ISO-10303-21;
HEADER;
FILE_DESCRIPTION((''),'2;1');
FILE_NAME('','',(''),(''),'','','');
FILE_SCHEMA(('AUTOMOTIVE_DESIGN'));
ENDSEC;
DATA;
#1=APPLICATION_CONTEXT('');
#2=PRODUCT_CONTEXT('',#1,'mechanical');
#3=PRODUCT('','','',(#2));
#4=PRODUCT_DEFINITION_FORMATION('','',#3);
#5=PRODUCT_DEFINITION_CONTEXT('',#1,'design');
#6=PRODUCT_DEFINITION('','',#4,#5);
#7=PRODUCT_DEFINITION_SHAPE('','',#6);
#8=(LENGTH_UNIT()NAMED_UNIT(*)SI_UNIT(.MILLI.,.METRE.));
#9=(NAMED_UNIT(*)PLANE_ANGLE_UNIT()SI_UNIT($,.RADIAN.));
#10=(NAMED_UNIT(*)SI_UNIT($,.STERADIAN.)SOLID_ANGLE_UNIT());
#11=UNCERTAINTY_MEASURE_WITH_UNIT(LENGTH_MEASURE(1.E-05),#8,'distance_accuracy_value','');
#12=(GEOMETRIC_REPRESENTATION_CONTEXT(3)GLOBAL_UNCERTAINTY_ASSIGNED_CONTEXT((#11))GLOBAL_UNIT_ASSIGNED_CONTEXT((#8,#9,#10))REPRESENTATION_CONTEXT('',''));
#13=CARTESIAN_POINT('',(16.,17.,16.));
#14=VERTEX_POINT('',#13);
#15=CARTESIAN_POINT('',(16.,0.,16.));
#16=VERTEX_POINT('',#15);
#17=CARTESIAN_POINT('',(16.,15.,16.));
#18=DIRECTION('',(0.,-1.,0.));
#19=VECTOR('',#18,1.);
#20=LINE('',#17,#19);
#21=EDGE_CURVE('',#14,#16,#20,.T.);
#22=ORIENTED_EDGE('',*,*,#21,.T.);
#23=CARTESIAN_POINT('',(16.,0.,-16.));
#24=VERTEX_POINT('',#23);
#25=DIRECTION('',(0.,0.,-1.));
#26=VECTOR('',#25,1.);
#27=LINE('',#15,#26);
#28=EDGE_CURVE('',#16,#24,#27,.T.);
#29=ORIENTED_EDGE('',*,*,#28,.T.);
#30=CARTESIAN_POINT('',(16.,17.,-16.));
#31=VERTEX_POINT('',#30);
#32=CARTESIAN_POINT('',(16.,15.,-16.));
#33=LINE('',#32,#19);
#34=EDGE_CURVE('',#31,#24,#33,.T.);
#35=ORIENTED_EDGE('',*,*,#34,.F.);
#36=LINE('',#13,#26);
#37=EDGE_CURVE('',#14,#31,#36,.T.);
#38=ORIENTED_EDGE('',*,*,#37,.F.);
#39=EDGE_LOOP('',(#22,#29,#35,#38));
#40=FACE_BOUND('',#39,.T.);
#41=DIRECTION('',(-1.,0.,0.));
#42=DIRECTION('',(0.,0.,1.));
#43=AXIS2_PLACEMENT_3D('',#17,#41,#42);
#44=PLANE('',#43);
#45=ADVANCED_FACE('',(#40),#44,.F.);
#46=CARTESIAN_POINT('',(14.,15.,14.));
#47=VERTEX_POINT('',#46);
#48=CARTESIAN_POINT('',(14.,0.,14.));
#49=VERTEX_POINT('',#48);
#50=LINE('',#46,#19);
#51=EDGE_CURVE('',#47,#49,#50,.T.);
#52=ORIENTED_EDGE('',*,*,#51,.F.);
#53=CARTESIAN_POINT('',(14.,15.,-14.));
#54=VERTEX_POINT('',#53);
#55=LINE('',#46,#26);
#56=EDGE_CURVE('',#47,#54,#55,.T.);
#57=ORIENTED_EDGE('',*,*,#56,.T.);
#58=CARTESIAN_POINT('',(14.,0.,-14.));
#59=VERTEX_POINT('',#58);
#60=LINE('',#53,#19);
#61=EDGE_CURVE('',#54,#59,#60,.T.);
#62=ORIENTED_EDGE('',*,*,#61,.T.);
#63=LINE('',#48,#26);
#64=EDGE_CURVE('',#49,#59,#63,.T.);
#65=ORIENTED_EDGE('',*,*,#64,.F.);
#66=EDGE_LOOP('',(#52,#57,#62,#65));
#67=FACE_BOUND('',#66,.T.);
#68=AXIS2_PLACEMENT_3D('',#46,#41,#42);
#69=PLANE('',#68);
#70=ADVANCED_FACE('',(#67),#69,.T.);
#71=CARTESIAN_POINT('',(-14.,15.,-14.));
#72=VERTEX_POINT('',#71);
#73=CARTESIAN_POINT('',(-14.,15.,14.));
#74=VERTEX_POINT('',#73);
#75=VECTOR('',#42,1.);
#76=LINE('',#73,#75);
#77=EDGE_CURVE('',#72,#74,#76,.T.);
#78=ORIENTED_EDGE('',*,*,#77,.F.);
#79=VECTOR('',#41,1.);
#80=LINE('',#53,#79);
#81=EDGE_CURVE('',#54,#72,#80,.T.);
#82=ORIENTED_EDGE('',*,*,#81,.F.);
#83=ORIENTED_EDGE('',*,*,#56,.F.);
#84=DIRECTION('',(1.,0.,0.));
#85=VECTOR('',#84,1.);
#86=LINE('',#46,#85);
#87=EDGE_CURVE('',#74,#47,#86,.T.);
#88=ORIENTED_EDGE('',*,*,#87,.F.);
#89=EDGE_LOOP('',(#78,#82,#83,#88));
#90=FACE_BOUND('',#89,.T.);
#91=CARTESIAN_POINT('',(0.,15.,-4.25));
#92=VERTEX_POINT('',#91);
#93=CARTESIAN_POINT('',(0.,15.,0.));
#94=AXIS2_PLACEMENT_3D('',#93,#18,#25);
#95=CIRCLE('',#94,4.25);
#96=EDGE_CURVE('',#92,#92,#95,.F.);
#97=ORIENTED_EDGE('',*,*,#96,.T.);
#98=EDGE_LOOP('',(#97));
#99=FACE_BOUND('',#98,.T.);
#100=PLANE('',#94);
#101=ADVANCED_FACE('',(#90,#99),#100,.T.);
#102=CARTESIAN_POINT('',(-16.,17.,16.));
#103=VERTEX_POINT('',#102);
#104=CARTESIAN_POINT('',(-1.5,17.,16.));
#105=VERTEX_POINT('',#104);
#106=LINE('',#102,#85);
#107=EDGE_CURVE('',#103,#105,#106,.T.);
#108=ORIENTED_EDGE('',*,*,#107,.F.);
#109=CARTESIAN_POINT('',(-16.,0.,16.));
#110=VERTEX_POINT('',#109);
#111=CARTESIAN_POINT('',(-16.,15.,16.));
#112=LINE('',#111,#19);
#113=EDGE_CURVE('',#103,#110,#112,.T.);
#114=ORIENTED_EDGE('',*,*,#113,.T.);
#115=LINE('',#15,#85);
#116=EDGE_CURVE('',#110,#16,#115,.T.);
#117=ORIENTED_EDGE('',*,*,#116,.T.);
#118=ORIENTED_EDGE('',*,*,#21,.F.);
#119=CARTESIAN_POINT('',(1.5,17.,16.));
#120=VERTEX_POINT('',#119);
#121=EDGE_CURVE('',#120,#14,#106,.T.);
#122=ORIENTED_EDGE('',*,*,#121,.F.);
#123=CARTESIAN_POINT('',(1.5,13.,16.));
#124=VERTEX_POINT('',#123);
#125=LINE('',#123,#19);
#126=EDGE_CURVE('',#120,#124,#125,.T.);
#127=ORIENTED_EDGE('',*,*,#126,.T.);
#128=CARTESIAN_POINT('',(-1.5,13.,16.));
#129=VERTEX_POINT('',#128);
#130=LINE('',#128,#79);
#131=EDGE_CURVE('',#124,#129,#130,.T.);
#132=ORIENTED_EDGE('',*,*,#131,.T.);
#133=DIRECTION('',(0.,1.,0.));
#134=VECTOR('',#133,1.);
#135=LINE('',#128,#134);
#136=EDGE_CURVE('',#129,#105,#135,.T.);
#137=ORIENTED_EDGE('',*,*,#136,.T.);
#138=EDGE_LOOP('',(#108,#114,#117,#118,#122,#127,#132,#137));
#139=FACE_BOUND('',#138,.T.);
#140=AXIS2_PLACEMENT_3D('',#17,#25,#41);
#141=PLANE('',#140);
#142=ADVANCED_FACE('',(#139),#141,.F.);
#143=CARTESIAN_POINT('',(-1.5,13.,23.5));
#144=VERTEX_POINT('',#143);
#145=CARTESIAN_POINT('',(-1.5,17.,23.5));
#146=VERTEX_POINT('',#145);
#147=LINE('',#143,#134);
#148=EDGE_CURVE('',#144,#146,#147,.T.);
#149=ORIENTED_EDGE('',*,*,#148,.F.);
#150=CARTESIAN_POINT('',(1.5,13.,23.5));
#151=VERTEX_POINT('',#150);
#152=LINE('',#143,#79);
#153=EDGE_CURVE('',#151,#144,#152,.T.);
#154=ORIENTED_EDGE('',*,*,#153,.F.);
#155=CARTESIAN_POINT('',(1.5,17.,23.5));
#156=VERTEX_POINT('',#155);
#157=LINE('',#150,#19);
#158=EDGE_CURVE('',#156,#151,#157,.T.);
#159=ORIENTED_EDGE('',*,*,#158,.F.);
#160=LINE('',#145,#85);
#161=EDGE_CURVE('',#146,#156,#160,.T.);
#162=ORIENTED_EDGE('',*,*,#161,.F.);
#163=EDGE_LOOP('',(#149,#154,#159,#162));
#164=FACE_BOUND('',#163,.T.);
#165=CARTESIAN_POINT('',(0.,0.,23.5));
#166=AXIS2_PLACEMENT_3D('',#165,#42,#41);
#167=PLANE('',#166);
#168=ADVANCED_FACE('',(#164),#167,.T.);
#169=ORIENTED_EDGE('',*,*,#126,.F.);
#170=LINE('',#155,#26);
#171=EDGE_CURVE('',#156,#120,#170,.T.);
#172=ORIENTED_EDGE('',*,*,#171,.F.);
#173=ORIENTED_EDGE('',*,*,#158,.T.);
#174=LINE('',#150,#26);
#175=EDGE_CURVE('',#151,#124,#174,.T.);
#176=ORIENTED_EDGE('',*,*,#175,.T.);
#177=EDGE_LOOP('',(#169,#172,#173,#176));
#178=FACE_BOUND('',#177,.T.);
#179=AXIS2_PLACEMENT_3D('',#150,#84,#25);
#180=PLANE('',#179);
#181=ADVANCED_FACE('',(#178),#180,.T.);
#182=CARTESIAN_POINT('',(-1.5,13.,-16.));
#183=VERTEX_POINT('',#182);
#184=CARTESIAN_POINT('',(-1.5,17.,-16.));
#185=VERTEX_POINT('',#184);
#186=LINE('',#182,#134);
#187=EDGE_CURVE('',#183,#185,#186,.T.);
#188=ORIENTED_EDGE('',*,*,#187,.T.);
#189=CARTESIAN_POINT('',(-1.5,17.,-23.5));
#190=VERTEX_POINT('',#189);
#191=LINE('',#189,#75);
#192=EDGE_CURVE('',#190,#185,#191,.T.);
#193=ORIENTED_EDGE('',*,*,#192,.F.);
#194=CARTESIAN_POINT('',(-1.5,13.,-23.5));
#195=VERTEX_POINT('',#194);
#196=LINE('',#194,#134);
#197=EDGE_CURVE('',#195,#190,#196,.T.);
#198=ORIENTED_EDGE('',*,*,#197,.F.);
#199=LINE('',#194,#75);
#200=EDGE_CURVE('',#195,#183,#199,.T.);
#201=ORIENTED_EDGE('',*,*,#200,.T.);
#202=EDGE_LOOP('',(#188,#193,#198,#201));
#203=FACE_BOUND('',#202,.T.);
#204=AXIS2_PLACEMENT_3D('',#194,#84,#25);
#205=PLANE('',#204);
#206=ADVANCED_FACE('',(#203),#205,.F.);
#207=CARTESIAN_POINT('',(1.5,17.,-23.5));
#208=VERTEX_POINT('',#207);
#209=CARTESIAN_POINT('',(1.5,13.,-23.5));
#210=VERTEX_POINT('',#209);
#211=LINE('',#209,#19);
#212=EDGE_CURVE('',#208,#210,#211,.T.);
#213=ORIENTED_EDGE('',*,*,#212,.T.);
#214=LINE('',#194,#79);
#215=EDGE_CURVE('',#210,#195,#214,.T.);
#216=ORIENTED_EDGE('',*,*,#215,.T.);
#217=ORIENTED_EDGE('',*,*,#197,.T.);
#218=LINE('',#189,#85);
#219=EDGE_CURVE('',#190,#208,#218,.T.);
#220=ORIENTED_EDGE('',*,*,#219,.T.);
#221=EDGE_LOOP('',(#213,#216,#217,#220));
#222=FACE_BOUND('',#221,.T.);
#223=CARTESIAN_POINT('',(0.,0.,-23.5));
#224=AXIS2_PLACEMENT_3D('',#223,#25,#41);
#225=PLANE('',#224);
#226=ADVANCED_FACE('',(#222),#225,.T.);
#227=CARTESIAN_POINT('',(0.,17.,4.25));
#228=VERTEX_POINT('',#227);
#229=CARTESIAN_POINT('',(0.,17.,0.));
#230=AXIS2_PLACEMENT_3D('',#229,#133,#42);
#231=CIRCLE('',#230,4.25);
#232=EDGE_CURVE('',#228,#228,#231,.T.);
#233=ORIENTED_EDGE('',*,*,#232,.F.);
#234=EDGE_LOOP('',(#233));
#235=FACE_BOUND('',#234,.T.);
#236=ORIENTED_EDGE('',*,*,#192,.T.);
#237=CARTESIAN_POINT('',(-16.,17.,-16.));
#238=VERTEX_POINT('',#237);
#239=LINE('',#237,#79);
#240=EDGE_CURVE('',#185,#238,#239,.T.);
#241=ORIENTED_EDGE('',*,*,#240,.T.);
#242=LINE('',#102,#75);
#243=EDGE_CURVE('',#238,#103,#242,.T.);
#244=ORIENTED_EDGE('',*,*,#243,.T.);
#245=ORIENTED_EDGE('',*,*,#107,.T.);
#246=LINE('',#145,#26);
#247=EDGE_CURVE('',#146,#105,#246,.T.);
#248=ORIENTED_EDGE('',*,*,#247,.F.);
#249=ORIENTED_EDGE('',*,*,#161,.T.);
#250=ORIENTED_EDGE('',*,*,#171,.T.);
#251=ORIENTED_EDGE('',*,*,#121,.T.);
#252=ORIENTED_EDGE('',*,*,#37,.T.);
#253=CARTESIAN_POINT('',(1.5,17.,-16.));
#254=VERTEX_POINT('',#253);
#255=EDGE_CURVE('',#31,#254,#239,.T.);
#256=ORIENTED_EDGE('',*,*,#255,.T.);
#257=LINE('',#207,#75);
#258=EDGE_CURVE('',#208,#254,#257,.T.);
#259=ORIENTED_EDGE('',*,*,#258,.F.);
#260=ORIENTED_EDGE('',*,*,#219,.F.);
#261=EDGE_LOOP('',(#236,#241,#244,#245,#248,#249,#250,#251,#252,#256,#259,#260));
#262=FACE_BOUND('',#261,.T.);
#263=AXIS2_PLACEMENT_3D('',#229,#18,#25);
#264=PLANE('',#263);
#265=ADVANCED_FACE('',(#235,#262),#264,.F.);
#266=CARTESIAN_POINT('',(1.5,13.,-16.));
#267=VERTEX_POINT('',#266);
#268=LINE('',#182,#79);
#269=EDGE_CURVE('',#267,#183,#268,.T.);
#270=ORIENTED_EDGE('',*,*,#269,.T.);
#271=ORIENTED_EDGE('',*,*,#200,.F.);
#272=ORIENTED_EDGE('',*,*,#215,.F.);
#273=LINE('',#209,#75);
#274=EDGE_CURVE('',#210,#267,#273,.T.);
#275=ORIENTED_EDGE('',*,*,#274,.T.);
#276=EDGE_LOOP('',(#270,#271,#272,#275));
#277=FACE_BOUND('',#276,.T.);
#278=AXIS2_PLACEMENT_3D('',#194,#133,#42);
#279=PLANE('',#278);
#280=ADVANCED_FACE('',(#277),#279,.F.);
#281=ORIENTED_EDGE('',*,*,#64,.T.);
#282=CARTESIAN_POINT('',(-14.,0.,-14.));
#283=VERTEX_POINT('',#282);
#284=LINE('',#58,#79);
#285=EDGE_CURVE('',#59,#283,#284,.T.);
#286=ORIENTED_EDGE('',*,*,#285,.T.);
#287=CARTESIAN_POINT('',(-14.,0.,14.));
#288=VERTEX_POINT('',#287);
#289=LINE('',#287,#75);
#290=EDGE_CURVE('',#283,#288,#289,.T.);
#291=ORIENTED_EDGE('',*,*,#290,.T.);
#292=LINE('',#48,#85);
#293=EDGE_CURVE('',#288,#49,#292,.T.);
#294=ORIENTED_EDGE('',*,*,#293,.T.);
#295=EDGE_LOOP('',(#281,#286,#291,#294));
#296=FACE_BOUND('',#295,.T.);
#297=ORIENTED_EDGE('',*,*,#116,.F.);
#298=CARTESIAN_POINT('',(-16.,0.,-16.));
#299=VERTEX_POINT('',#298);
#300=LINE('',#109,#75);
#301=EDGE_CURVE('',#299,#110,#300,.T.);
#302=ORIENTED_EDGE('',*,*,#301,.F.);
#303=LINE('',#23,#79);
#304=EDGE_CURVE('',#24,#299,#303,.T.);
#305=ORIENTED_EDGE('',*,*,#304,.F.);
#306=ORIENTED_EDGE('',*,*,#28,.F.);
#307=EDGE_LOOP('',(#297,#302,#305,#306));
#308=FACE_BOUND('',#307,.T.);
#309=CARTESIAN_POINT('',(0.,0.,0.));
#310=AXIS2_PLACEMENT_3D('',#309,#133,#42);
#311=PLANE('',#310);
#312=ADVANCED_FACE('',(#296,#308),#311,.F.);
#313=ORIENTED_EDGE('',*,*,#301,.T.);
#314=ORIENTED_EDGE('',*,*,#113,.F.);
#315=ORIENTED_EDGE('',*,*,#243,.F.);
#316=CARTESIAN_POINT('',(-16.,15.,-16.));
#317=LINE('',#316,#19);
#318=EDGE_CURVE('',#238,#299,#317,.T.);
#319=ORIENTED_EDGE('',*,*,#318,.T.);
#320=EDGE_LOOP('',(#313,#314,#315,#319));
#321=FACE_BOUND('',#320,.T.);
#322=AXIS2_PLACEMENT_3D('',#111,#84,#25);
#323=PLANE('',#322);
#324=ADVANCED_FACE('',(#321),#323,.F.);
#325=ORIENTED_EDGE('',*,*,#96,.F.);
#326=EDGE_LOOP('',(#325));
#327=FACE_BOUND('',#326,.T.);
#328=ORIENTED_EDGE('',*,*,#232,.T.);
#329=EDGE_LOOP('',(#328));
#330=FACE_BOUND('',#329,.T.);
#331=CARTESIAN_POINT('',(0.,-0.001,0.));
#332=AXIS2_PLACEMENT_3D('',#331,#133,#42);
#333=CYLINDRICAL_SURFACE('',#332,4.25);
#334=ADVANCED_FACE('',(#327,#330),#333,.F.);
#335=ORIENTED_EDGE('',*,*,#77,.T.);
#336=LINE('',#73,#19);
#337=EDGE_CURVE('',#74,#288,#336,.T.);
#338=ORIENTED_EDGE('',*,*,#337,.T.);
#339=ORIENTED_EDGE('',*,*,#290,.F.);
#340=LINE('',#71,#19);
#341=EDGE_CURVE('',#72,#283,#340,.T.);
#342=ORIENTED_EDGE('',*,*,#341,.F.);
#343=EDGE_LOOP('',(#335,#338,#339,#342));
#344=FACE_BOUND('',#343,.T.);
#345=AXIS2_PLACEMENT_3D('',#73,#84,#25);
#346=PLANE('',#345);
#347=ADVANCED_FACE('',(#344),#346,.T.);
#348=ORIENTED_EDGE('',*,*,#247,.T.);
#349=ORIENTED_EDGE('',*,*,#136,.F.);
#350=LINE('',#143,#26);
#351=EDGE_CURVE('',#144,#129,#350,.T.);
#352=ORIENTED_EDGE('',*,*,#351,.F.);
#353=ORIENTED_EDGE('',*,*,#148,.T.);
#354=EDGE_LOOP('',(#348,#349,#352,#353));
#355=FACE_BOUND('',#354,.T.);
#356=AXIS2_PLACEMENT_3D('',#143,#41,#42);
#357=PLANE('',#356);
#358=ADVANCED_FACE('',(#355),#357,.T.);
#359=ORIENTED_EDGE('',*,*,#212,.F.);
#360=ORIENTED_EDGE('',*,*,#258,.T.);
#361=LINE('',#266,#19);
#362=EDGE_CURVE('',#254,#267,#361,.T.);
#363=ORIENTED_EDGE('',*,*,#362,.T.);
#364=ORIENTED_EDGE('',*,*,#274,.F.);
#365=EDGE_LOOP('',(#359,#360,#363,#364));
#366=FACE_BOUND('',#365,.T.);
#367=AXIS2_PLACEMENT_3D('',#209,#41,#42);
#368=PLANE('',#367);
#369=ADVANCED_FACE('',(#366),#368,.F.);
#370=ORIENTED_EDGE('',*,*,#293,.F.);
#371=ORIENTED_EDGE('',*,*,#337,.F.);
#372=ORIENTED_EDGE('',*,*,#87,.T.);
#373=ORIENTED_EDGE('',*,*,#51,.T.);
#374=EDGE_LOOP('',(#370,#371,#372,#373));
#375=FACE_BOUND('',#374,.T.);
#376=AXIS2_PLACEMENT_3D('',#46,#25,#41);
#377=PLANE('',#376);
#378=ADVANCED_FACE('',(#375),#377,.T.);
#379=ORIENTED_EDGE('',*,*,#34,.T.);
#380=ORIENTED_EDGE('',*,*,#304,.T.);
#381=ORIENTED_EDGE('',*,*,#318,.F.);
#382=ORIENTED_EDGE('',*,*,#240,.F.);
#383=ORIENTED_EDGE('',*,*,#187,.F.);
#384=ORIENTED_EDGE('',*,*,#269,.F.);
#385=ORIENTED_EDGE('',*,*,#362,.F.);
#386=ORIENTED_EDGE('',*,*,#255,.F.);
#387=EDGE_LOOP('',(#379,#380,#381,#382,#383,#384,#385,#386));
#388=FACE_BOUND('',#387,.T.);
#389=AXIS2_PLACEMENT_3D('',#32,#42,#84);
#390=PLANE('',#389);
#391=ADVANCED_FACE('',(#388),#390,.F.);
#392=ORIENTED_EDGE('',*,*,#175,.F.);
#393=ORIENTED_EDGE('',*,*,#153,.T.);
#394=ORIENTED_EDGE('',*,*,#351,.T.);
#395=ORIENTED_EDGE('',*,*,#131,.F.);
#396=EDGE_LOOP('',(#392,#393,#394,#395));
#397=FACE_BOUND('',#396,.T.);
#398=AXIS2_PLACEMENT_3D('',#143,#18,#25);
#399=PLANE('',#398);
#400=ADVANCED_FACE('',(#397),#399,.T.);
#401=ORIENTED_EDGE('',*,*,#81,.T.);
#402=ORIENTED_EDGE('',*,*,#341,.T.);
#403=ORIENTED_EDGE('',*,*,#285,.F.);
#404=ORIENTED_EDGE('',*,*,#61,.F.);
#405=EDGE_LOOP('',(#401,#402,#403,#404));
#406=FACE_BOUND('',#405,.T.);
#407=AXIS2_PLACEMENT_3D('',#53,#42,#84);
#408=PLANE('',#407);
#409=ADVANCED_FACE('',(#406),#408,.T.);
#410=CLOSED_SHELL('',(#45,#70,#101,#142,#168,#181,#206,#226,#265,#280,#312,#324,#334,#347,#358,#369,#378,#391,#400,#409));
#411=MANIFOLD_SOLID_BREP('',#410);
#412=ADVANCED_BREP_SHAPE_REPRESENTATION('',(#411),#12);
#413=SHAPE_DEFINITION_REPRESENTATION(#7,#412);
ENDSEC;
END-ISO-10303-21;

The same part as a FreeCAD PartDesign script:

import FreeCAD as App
import Part
import Sketcher
from FreeCAD import Vector
Q = App.Units.Quantity

doc = App.newDocument("Part")
params = doc.addObject("Spreadsheet::Sheet", "Params")
for row, (alias, value) in enumerate([
    ("sketch1_width", "32 mm"),
    ("sketch1_width2", "28 mm"),
    ("pad1_length", "15 mm"),
    ("sketch2_width", "32 mm"),
    ("pad2_length", "2 mm"),
    ("sketch3_diameter", "8.5 mm"),
    ("sketch4_width", "3 mm"),
    ("sketch4_height", "4 mm"),
    ("pad3_length", "7.5 mm"),
], start=1):
    params.set(f"A{row}", alias)
    params.set(f"B{row}", "=" + value)
    params.setAlias(f"B{row}", alias)

body = doc.addObject("PartDesign::Body", "Body")

# Sketch on XZ plane
sketch1 = body.newObject("Sketcher::SketchObject", "Sketch")
sketch1.AttachmentSupport = (doc.getObject("XZ_Plane"), [""])
sketch1.MapMode = "FlatFace"
sketch1.addGeometry(Part.LineSegment(Vector(-16, -16, 0), Vector(-16, 16, 0)), False)
sketch1.addGeometry(Part.LineSegment(Vector(-16, 16, 0), Vector(16, 16, 0)), False)
sketch1.addGeometry(Part.LineSegment(Vector(16, 16, 0), Vector(16, -16, 0)), False)
sketch1.addGeometry(Part.LineSegment(Vector(16, -16, 0), Vector(-16, -16, 0)), False)
sketch1.addGeometry(Part.LineSegment(Vector(14, 14, 0), Vector(-14, 14, 0)), False)
sketch1.addGeometry(Part.LineSegment(Vector(-14, 14, 0), Vector(-14, -14, 0)), False)
sketch1.addGeometry(Part.LineSegment(Vector(-14, -14, 0), Vector(14, -14, 0)), False)
sketch1.addGeometry(Part.LineSegment(Vector(14, -14, 0), Vector(14, 14, 0)), False)
sketch1.addConstraint(Sketcher.Constraint("Coincident", 0, 2, 1, 1))
sketch1.addConstraint(Sketcher.Constraint("Coincident", 1, 2, 2, 1))
sketch1.addConstraint(Sketcher.Constraint("Coincident", 2, 2, 3, 1))
sketch1.addConstraint(Sketcher.Constraint("Coincident", 3, 2, 0, 1))
sketch1.addConstraint(Sketcher.Constraint("Coincident", 4, 2, 5, 1))
sketch1.addConstraint(Sketcher.Constraint("Coincident", 5, 2, 6, 1))
sketch1.addConstraint(Sketcher.Constraint("Coincident", 6, 2, 7, 1))
sketch1.addConstraint(Sketcher.Constraint("Coincident", 7, 2, 4, 1))
sketch1.addConstraint(Sketcher.Constraint("Vertical", 0))
sketch1.addConstraint(Sketcher.Constraint("Horizontal", 1))
sketch1.addConstraint(Sketcher.Constraint("Vertical", 2))
sketch1.addConstraint(Sketcher.Constraint("Horizontal", 3))
sketch1.addConstraint(Sketcher.Constraint("Horizontal", 4))
sketch1.addConstraint(Sketcher.Constraint("Vertical", 5))
sketch1.addConstraint(Sketcher.Constraint("Horizontal", 6))
sketch1.addConstraint(Sketcher.Constraint("Vertical", 7))
sketch1.addConstraint(Sketcher.Constraint("Symmetric", 0, 2, 2, 2, -1, 1))
sketch1.addConstraint(Sketcher.Constraint("Symmetric", 4, 2, 6, 2, -1, 1))
sketch1.addConstraint(Sketcher.Constraint("Equal", 3, 0))
sketch1.addConstraint(Sketcher.Constraint("Equal", 6, 5))
sketch1.addConstraint(Sketcher.Constraint("DistanceX", 1, 1, 1, 2, Q("32 mm")))
sketch1.addConstraint(Sketcher.Constraint("DistanceX", 4, 2, 4, 1, Q("28 mm")))
sketch1.setExpression("Constraints[20]", "Params.sketch1_width")
sketch1.setExpression("Constraints[21]", "Params.sketch1_width2")
pad1 = body.newObject("PartDesign::Pad", "Pad")
pad1.Profile = sketch1
pad1.setExpression("Length", "Params.pad1_length")
pad1.Reversed = True

# Sketch on XZ plane
sketch2 = body.newObject("Sketcher::SketchObject", "Sketch001")
sketch2.AttachmentSupport = (doc.getObject("XZ_Plane"), [""])
sketch2.MapMode = "FlatFace"
sketch2.AttachmentOffset = App.Placement(Vector(0, 0, -15), App.Rotation())
sketch2.addGeometry(Part.LineSegment(Vector(-16, -16, 0), Vector(-16, 16, 0)), False)
sketch2.addGeometry(Part.LineSegment(Vector(-16, 16, 0), Vector(16, 16, 0)), False)
sketch2.addGeometry(Part.LineSegment(Vector(16, 16, 0), Vector(16, -16, 0)), False)
sketch2.addGeometry(Part.LineSegment(Vector(16, -16, 0), Vector(-16, -16, 0)), False)
sketch2.addConstraint(Sketcher.Constraint("Coincident", 0, 2, 1, 1))
sketch2.addConstraint(Sketcher.Constraint("Coincident", 1, 2, 2, 1))
sketch2.addConstraint(Sketcher.Constraint("Coincident", 2, 2, 3, 1))
sketch2.addConstraint(Sketcher.Constraint("Coincident", 3, 2, 0, 1))
sketch2.addConstraint(Sketcher.Constraint("Vertical", 0))
sketch2.addConstraint(Sketcher.Constraint("Horizontal", 1))
sketch2.addConstraint(Sketcher.Constraint("Vertical", 2))
sketch2.addConstraint(Sketcher.Constraint("Horizontal", 3))
sketch2.addConstraint(Sketcher.Constraint("Symmetric", 0, 2, 2, 2, -1, 1))
sketch2.addConstraint(Sketcher.Constraint("Equal", 3, 0))
sketch2.addConstraint(Sketcher.Constraint("DistanceX", 1, 1, 1, 2, Q("32 mm")))
sketch2.setExpression("Constraints[10]", "Params.sketch2_width")
pad2 = body.newObject("PartDesign::Pad", "Pad001")
pad2.Profile = sketch2
pad2.setExpression("Length", "Params.pad2_length")
pad2.Reversed = True

# Sketch on XZ plane
sketch3 = body.newObject("Sketcher::SketchObject", "Sketch002")
sketch3.AttachmentSupport = (doc.getObject("XZ_Plane"), [""])
sketch3.MapMode = "FlatFace"
sketch3.AttachmentOffset = App.Placement(Vector(0, 0, -17), App.Rotation())
sketch3.addGeometry(Part.Circle(Vector(0, 0, 0), Vector(0, 0, 1), 4.2), False)
sketch3.addConstraint(Sketcher.Constraint("Coincident", 0, 3, -1, 1))
sketch3.addConstraint(Sketcher.Constraint("Diameter", 0, Q("8.5 mm")))
sketch3.setExpression("Constraints[1]", "Params.sketch3_diameter")
pocket1 = body.newObject("PartDesign::Pocket", "Pocket")
pocket1.Profile = sketch3
pocket1.Type = "UpToFirst"
pocket1.Reversed = True

# Sketch on XY plane
sketch4 = body.newObject("Sketcher::SketchObject", "Sketch003")
sketch4.AttachmentSupport = (doc.getObject("XY_Plane"), [""])
sketch4.MapMode = "FlatFace"
sketch4.AttachmentOffset = App.Placement(Vector(0, 0, -16), App.Rotation())
sketch4.addGeometry(Part.LineSegment(Vector(1.5, 17, 0), Vector(1.5, 13, 0)), False)
sketch4.addGeometry(Part.LineSegment(Vector(1.5, 13, 0), Vector(-1.5, 13, 0)), False)
sketch4.addGeometry(Part.LineSegment(Vector(-1.5, 13, 0), Vector(-1.5, 17, 0)), False)
sketch4.addGeometry(Part.LineSegment(Vector(-1.5, 17, 0), Vector(1.5, 17, 0)), False)
sketch4.addConstraint(Sketcher.Constraint("Coincident", 0, 2, 1, 1))
sketch4.addConstraint(Sketcher.Constraint("Coincident", 1, 2, 2, 1))
sketch4.addConstraint(Sketcher.Constraint("Coincident", 2, 2, 3, 1))
sketch4.addConstraint(Sketcher.Constraint("Coincident", 3, 2, 0, 1))
sketch4.addConstraint(Sketcher.Constraint("Vertical", 0))
sketch4.addConstraint(Sketcher.Constraint("Horizontal", 1))
sketch4.addConstraint(Sketcher.Constraint("Vertical", 2))
sketch4.addConstraint(Sketcher.Constraint("Horizontal", 3))
sketch4.addConstraint(Sketcher.Constraint("DistanceX", 1, 2, 1, 1, Q("3 mm")))
sketch4.addConstraint(Sketcher.Constraint("DistanceY", 0, 2, 0, 1, Q("4 mm")))
sketch4.addConstraint(Sketcher.Constraint("DistanceY", -1, 1, 0, 2, Q("13 mm")))
sketch4.addConstraint(Sketcher.Constraint("DistanceX", -1, 1, 0, 2, Q("1.5 mm")))
sketch4.setExpression("Constraints[8]", "Params.sketch4_width")
sketch4.setExpression("Constraints[9]", "Params.sketch4_height")
pad3 = body.newObject("PartDesign::Pad", "Pad002")
pad3.Profile = sketch4
pad3.setExpression("Length", "Params.pad3_length")
pad3.Reversed = True
doc.recompute()

mirrored = body.newObject("PartDesign::Mirrored", "Mirrored")
mirrored.Originals = [pad3]
mirrored.MirrorPlane = (doc.getObject("XY_Plane"), [""])
body.Tip = mirrored

doc.recompute()
